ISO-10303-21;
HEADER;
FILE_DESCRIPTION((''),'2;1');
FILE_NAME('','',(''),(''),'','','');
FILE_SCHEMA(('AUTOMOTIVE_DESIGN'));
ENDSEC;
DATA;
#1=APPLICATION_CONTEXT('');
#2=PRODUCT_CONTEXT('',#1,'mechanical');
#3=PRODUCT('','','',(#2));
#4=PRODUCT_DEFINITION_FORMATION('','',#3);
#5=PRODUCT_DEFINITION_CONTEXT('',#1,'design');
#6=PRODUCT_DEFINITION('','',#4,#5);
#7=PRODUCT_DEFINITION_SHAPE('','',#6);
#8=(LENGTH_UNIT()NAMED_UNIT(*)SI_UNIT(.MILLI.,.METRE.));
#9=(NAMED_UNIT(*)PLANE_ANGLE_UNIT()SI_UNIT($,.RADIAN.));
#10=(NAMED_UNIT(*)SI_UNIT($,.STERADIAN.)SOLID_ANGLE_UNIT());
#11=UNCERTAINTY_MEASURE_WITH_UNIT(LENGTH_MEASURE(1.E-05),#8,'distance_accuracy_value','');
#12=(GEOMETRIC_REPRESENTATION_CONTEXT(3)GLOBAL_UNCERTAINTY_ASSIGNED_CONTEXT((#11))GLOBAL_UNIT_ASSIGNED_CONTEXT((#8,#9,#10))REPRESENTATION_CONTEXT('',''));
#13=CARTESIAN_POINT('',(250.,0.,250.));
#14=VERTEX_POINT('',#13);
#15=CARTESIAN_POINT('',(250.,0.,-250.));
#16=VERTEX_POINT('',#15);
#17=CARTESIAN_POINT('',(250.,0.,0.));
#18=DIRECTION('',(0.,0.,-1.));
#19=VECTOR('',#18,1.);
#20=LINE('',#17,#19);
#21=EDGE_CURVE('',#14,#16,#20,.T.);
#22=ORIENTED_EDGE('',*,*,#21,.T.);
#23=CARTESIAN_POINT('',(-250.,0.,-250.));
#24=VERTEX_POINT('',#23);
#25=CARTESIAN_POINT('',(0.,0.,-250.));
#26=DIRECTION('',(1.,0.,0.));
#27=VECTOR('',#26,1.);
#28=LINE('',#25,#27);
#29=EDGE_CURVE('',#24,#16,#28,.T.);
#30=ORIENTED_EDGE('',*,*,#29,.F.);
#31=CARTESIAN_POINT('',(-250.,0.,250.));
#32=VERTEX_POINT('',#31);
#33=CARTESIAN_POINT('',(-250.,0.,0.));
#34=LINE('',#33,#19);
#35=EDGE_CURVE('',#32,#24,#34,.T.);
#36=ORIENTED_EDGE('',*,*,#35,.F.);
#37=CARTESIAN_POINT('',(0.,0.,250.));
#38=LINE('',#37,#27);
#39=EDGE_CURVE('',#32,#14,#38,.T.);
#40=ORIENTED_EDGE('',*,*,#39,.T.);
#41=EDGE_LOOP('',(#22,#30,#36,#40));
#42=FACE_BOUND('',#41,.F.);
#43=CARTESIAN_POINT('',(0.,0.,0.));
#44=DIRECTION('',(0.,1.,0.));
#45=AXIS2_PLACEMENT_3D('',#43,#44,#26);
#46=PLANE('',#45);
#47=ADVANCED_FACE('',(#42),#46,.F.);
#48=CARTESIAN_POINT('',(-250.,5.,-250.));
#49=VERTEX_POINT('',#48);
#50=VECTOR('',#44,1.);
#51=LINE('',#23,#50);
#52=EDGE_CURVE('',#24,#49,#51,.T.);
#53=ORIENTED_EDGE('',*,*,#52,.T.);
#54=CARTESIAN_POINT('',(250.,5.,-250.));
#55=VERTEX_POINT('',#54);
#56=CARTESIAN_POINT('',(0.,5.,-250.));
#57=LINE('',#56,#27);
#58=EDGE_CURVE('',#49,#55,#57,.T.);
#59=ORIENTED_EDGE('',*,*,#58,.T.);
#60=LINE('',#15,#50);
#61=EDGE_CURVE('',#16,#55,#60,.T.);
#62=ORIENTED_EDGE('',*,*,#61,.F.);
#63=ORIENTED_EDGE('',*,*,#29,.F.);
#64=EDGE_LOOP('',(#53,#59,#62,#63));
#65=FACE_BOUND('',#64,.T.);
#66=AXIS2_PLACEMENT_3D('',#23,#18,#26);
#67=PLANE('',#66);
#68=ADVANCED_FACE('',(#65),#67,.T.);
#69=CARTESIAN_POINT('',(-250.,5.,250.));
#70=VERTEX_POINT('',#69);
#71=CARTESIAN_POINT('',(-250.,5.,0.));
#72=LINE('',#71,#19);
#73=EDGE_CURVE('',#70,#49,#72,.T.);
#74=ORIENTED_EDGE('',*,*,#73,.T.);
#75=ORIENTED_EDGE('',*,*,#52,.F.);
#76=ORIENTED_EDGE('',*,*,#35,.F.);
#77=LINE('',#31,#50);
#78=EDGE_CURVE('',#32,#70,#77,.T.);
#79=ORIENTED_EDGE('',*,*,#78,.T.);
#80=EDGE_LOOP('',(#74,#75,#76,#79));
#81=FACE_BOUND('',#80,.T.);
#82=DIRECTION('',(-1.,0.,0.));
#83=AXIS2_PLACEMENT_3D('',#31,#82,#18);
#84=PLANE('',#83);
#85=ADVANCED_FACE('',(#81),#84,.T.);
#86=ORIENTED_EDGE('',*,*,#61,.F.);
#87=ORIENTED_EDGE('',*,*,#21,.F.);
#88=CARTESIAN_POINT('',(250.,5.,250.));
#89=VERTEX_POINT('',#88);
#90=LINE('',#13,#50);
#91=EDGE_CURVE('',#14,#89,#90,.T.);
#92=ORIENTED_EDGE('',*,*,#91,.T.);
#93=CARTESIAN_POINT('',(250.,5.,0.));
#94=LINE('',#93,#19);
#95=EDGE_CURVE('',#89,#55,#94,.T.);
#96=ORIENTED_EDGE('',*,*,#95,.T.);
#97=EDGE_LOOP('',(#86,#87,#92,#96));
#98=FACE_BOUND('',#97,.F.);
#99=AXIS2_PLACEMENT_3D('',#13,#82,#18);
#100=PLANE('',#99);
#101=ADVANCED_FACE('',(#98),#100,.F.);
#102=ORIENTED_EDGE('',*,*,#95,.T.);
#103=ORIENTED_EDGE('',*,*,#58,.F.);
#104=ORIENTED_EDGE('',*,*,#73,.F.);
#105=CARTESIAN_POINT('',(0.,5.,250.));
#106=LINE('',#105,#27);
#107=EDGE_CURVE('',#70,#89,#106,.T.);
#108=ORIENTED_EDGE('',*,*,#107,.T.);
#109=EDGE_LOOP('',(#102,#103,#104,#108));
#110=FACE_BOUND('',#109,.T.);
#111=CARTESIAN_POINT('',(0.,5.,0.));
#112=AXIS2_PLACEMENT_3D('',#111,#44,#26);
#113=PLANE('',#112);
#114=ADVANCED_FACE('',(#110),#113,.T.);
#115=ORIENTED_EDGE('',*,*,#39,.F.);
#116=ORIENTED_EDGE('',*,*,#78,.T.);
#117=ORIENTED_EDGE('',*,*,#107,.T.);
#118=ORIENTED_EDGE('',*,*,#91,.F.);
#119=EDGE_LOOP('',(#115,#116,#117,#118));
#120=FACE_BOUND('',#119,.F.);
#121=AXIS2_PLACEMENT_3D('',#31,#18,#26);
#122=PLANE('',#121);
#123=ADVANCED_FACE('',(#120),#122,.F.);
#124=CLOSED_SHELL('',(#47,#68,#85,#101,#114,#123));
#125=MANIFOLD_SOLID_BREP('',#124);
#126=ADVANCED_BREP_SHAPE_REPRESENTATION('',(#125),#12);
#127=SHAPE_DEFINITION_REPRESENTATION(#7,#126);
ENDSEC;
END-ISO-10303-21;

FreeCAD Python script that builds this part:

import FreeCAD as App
import Part
import Sketcher

doc = App.newDocument("Part")
body = doc.addObject("PartDesign::Body", "Body")

# Sketch on XZ plane
sketch1 = body.newObject("Sketcher::SketchObject", "Sketch")
sketch1.AttachmentSupport = (doc.getObject("XZ_Plane"), [""])
sketch1.MapMode = "FlatFace"
sketch1.addGeometry([
    Part.LineSegment(App.Vector(-250, -250, 0), App.Vector(-250, 250, 0)),
    Part.LineSegment(App.Vector(-250, 250, 0), App.Vector(250, 250, 0)),
    Part.LineSegment(App.Vector(250, 250, 0), App.Vector(250, -250, 0)),
    Part.LineSegment(App.Vector(250, -250, 0), App.Vector(-250, -250, 0)),
], False)
sketch1.addConstraint([
    Sketcher.Constraint("Coincident", 0, 2, 1, 1),
    Sketcher.Constraint("Coincident", 1, 2, 2, 1),
    Sketcher.Constraint("Coincident", 2, 2, 3, 1),
    Sketcher.Constraint("Coincident", 3, 2, 0, 1),
    Sketcher.Constraint("Vertical", 0),
    Sketcher.Constraint("Horizontal", 1),
    Sketcher.Constraint("Vertical", 2),
    Sketcher.Constraint("Horizontal", 3),
    Sketcher.Constraint("Symmetric", 0, 2, 2, 2, -1, 1),
    Sketcher.Constraint("Equal", 3, 0),
    Sketcher.Constraint("DistanceX", 1, 1, 1, 2, 500.0),
])
pad1 = body.newObject("PartDesign::Pad", "Pad")
pad1.Profile = sketch1
pad1.Length = 5
pad1.Reversed = True

doc.recompute()
